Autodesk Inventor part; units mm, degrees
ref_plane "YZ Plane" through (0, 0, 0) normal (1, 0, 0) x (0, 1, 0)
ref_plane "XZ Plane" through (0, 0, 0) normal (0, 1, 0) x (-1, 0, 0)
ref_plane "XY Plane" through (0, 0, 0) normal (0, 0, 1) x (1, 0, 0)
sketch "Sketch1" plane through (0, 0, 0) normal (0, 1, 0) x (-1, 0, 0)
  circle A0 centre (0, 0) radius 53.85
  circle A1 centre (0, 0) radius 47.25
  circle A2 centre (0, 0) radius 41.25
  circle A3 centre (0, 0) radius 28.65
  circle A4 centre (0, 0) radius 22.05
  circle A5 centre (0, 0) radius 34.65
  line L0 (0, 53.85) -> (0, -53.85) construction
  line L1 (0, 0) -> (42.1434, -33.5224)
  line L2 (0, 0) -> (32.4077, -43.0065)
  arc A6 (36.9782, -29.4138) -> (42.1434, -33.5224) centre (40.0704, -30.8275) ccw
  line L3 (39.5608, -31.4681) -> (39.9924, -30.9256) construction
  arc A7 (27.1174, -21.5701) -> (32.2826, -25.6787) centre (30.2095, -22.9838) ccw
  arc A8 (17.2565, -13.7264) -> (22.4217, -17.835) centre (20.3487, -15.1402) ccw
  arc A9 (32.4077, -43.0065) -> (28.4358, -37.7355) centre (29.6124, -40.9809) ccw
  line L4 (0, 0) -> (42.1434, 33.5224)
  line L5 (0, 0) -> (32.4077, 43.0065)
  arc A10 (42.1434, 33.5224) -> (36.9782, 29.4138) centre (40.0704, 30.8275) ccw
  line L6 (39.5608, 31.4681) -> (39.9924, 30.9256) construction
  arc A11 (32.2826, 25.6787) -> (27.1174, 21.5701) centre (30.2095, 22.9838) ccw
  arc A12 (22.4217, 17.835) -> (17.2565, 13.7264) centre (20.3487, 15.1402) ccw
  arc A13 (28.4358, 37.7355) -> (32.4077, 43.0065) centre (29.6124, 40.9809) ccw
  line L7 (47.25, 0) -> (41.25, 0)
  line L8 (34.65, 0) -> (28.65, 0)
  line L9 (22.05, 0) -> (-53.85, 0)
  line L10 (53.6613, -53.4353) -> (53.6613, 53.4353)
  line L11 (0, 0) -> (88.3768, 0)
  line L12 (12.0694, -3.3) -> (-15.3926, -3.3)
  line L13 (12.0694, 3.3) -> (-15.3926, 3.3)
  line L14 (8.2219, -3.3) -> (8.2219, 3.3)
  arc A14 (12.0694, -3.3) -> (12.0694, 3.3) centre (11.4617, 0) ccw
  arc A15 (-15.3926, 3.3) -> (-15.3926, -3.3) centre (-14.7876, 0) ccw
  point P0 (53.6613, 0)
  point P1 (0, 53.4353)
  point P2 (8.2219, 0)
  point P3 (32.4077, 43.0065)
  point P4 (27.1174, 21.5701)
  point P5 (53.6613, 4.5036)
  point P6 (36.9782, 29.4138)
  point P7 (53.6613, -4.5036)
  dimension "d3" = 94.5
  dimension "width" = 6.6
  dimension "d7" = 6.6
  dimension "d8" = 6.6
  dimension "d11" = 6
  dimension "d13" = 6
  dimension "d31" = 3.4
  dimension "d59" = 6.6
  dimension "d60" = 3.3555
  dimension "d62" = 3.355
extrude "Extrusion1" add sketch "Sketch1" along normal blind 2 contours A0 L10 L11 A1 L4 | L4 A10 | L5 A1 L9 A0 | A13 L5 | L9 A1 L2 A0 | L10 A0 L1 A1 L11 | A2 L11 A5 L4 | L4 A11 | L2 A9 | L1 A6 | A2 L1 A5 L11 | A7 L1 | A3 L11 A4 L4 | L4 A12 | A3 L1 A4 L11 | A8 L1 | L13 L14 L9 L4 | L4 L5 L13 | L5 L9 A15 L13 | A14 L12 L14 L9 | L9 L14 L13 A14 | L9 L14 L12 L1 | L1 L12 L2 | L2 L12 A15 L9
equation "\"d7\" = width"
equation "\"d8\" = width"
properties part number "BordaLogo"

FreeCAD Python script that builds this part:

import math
import FreeCAD as App
import Part
import Sketcher

V = App.Vector

doc = App.newDocument("Part")
body = doc.addObject("PartDesign::Body", "Body")
body.AllowCompound = True

# Sketch on XZ plane
sketch1 = body.newObject("Sketcher::SketchObject", "Sketch")
sketch1.AttachmentSupport = (doc.getObject("XZ_Plane"), [""])
sketch1.MapMode = "FlatFace"
sketch1.addGeometry(Part.ArcOfCircle(Part.Circle(V(0, 0, 0), V(0, 0, 1), 53.85), math.radians(141.499978), math.radians(175.202029)), False)
sketch1.addGeometry(Part.ArcOfCircle(Part.Circle(V(-40.0704, 30.8275, 0), V(0, 0, 1), 3.399973), math.radians(-24.569054), math.radians(127.568592)), False)
sketch1.addGeometry(Part.ArcOfCircle(Part.Circle(V(0, 0, 0), V(0, 0, 1), 47.25), math.radians(141.499989), math.radians(218.500011)), False)
sketch1.addGeometry(Part.ArcOfCircle(Part.Circle(V(-40.0704, -30.8275, 0), V(0, 0, 1), 3.400037), math.radians(-127.568592), math.radians(24.569054)), False)
sketch1.addGeometry(Part.ArcOfCircle(Part.Circle(V(0, 0, 0), V(0, 0, 1), 53.85), math.radians(-175.202029), math.radians(-141.499978)), False)
sketch1.addGeometry(Part.LineSegment(V(-53.6613, -4.504152, 0), V(-53.6613, 4.504152, 0)), False)
sketch1.addGeometry(Part.ArcOfCircle(Part.Circle(V(-29.6124, 40.9809, 0), V(0, 0, 1), 3.452102), math.radians(144.071225), math.radians(289.927804)), False)
sketch1.addGeometry(Part.ArcOfCircle(Part.Circle(V(0, 0, 0), V(0, 0, 1), 53.85), math.radians(-126.999981), math.radians(126.999981)), False)
sketch1.addGeometry(Part.ArcOfCircle(Part.Circle(V(-29.6124, -40.9809, 0), V(0, 0, 1), 3.452066), math.radians(70.072196), math.radians(215.928775)), False)
sketch1.addGeometry(Part.ArcOfCircle(Part.Circle(V(0, 0, 0), V(0, 0, 1), 47.25), math.radians(-127.000059), math.radians(127.000059)), False)
sketch1.addGeometry(Part.ArcOfCircle(Part.Circle(V(-30.2095, 22.9838, 0), V(0, 0, 1), 3.400034), math.radians(-24.569755), math.radians(127.569928)), False)
sketch1.addGeometry(Part.ArcOfCircle(Part.Circle(V(0, 0, 0), V(0, 0, 1), 34.65), math.radians(141.50007), math.radians(218.49993)), False)
sketch1.addGeometry(Part.ArcOfCircle(Part.Circle(V(-30.2095, -22.9838, 0), V(0, 0, 1), 3.399946), math.radians(-127.569928), math.radians(24.569755)), False)
sketch1.addGeometry(Part.ArcOfCircle(Part.Circle(V(0, 0, 0), V(0, 0, 1), 41.25), math.radians(141.500043), math.radians(218.499957)), False)
sketch1.addGeometry(Part.ArcOfCircle(Part.Circle(V(-20.3487, 15.1402, 0), V(0, 0, 1), 3.399894), math.radians(-24.570587), math.radians(127.56962)), False)
sketch1.addGeometry(Part.ArcOfCircle(Part.Circle(V(0, 0, 0), V(0, 0, 1), 22.05), math.radians(141.500081), math.radians(218.499919)), False)
sketch1.addGeometry(Part.ArcOfCircle(Part.Circle(V(-20.3487, -15.1402, 0), V(0, 0, 1), 3.400078), math.radians(-127.56962), math.radians(24.570587)), False)
sketch1.addGeometry(Part.ArcOfCircle(Part.Circle(V(0, 0, 0), V(0, 0, 1), 28.65), math.radians(141.50004), math.radians(218.49996)), False)
sketch1.addGeometry(Part.ArcOfCircle(Part.Circle(V(14.7876, 0, 0), V(0, 0, 1), 3.355), math.radians(-79.611142), math.radians(79.611142)), False)
sketch1.addGeometry(Part.LineSegment(V(15.3926, -3.3, 0), V(-12.0694, -3.3, 0)), False)
sketch1.addGeometry(Part.ArcOfCircle(Part.Circle(V(-11.4617, 0, 0), V(0, 0, 1), 3.355488), math.radians(100.434205), math.radians(259.565795)), False)
sketch1.addGeometry(Part.LineSegment(V(-12.0694, 3.3, 0), V(15.3926, 3.3, 0)), False)
sketch1.addConstraint(Sketcher.Constraint("Coincident", 0, 1, 1, 2))
sketch1.addConstraint(Sketcher.Constraint("Coincident", 1, 1, 2, 1))
sketch1.addConstraint(Sketcher.Constraint("Coincident", 2, 2, 3, 2))
sketch1.addConstraint(Sketcher.Constraint("Coincident", 3, 1, 4, 2))
sketch1.addConstraint(Sketcher.Constraint("Coincident", 4, 1, 5, 1))
sketch1.addConstraint(Sketcher.Constraint("Coincident", 5, 2, 0, 2))
sketch1.addConstraint(Sketcher.Constraint("Coincident", 6, 1, 7, 2))
sketch1.addConstraint(Sketcher.Constraint("Coincident", 7, 1, 8, 2))
sketch1.addConstraint(Sketcher.Constraint("Coincident", 8, 1, 9, 1))
sketch1.addConstraint(Sketcher.Constraint("Coincident", 9, 2, 6, 2))
sketch1.addConstraint(Sketcher.Constraint("Coincident", 10, 1, 11, 1))
sketch1.addConstraint(Sketcher.Constraint("Coincident", 11, 2, 12, 2))
sketch1.addConstraint(Sketcher.Constraint("Coincident", 12, 1, 13, 2))
sketch1.addConstraint(Sketcher.Constraint("Coincident", 13, 1, 10, 2))
sketch1.addConstraint(Sketcher.Constraint("Coincident", 14, 1, 15, 1))
sketch1.addConstraint(Sketcher.Constraint("Coincident", 15, 2, 16, 2))
sketch1.addConstraint(Sketcher.Constraint("Coincident", 16, 1, 17, 2))
sketch1.addConstraint(Sketcher.Constraint("Coincident", 17, 1, 14, 2))
sketch1.addConstraint(Sketcher.Constraint("Coincident", 18, 1, 19, 1))
sketch1.addConstraint(Sketcher.Constraint("Coincident", 19, 2, 20, 2))
sketch1.addConstraint(Sketcher.Constraint("Coincident", 20, 1, 21, 1))
sketch1.addConstraint(Sketcher.Constraint("Coincident", 21, 2, 18, 2))
sketch1.addConstraint(Sketcher.Constraint("Vertical", 5))
sketch1.addConstraint(Sketcher.Constraint("Horizontal", 19))
sketch1.addConstraint(Sketcher.Constraint("Horizontal", 21))
sketch1.addConstraint(Sketcher.Constraint("Coincident", 0, 3, -1, 1))
sketch1.addConstraint(Sketcher.Constraint("Coincident", 2, 3, -1, 1))
sketch1.addConstraint(Sketcher.Constraint("Coincident", 4, 3, -1, 1))
sketch1.addConstraint(Sketcher.Constraint("Coincident", 7, 3, -1, 1))
sketch1.addConstraint(Sketcher.Constraint("Coincident", 9, 3, -1, 1))
sketch1.addConstraint(Sketcher.Constraint("Coincident", 11, 3, -1, 1))
sketch1.addConstraint(Sketcher.Constraint("Coincident", 13, 3, -1, 1))
sketch1.addConstraint(Sketcher.Constraint("Coincident", 15, 3, -1, 1))
sketch1.addConstraint(Sketcher.Constraint("Coincident", 17, 3, -1, 1))
sketch1.addConstraint(Sketcher.Constraint("PointOnObject", 18, 3, -1))
sketch1.addConstraint(Sketcher.Constraint("PointOnObject", 20, 3, -1))
sketch1.addConstraint(Sketcher.Constraint("Radius", 1, 3.4))
sketch1.addConstraint(Sketcher.Constraint("Radius", 3, 3.4))
sketch1.addConstraint(Sketcher.Constraint("Radius", 10, 3.4))
sketch1.addConstraint(Sketcher.Constraint("Radius", 12, 3.4))
sketch1.addConstraint(Sketcher.Constraint("Radius", 14, 3.4))
sketch1.addConstraint(Sketcher.Constraint("Radius", 16, 3.4))
sketch1.addConstraint(Sketcher.Constraint("Radius", 2, 47.25))
sketch1.addConstraint(Sketcher.Constraint("Radius", 9, 47.25))
sketch1.addConstraint(Sketcher.Constraint("Radius", 18, 3.355))
sketch1.addConstraint(Sketcher.Constraint("Radius", 20, 3.3555))
sketch1.addConstraint(Sketcher.Constraint("DistanceY", 19, 2, 20, 1, 6.6))
sketch1.addConstraint(Sketcher.Constraint("Radius", 0, 53.85))
sketch1.addConstraint(Sketcher.Constraint("Radius", 4, 53.85))
sketch1.addConstraint(Sketcher.Constraint("Radius", 7, 53.85))
sketch1.addConstraint(Sketcher.Constraint("Radius", 11, 34.65))
sketch1.addConstraint(Sketcher.Constraint("Radius", 13, 41.25))
sketch1.addConstraint(Sketcher.Constraint("Radius", 15, 22.05))
sketch1.addConstraint(Sketcher.Constraint("Radius", 17, 28.65))
sketch1.addConstraint(Sketcher.Constraint("Radius", 6, 3.452))
sketch1.addConstraint(Sketcher.Constraint("Radius", 8, 3.452))
sketch1.addConstraint(Sketcher.Constraint("DistanceY", 18, 1, -1, 1, 3.3))
sketch1.addConstraint(Sketcher.Constraint("DistanceX", 19, 2, 19, 1, 27.462))
sketch1.addConstraint(Sketcher.Constraint("DistanceY", -1, 1, 10, 1, 21.57))
sketch1.addConstraint(Sketcher.Constraint("DistanceY", 11, 2, -1, 1, 21.57))
sketch1.addConstraint(Sketcher.Constraint("DistanceY", 10, 3, 1, 1, 6.43))
sketch1.addConstraint(Sketcher.Constraint("DistanceY", 2, 2, 12, 3, 6.43))
sketch1.addConstraint(Sketcher.Constraint("DistanceY", 11, 2, 16, 3, 6.43))
sketch1.addConstraint(Sketcher.Constraint("DistanceY", 5, 1, 5, 2, 9.0083))
sketch1.addConstraint(Sketcher.Constraint("DistanceY", -1, 1, 6, 3, 40.981))
sketch1.addConstraint(Sketcher.Constraint("DistanceY", 8, 3, -1, 1, 40.981))
sketch1.addConstraint(Sketcher.Constraint("DistanceY", -1, 1, 17, 1, 17.835))
sketch1.addConstraint(Sketcher.Constraint("DistanceY", 3, 3, 1, 3, 61.655))
sketch1.addConstraint(Sketcher.Constraint("DistanceX", 1, 3, 6, 3, 10.458))
sketch1.addConstraint(Sketcher.Constraint("DistanceX", 3, 3, 6, 3, 10.458))
sketch1.addConstraint(Sketcher.Constraint("DistanceX", 3, 3, 8, 3, 10.458))
sketch1.addConstraint(Sketcher.Constraint("DistanceX", 1, 3, 10, 3, 9.861))
sketch1.addConstraint(Sketcher.Constraint("DistanceY", 10, 3, 6, 3, 17.997))
sketch1.addConstraint(Sketcher.Constraint("DistanceX", 14, 3, 14, 1, 3.092))
sketch1.addConstraint(Sketcher.Constraint("DistanceX", 14, 1, 20, 3, 5.795))
sketch1.addConstraint(Sketcher.Constraint("DistanceX", 12, 3, 15, 2, 12.953))
pad1 = body.newObject("PartDesign::Pad", "Pad")
pad1.Profile = sketch1
pad1.Length = 2
pad1.Reversed = True

doc.recompute()
